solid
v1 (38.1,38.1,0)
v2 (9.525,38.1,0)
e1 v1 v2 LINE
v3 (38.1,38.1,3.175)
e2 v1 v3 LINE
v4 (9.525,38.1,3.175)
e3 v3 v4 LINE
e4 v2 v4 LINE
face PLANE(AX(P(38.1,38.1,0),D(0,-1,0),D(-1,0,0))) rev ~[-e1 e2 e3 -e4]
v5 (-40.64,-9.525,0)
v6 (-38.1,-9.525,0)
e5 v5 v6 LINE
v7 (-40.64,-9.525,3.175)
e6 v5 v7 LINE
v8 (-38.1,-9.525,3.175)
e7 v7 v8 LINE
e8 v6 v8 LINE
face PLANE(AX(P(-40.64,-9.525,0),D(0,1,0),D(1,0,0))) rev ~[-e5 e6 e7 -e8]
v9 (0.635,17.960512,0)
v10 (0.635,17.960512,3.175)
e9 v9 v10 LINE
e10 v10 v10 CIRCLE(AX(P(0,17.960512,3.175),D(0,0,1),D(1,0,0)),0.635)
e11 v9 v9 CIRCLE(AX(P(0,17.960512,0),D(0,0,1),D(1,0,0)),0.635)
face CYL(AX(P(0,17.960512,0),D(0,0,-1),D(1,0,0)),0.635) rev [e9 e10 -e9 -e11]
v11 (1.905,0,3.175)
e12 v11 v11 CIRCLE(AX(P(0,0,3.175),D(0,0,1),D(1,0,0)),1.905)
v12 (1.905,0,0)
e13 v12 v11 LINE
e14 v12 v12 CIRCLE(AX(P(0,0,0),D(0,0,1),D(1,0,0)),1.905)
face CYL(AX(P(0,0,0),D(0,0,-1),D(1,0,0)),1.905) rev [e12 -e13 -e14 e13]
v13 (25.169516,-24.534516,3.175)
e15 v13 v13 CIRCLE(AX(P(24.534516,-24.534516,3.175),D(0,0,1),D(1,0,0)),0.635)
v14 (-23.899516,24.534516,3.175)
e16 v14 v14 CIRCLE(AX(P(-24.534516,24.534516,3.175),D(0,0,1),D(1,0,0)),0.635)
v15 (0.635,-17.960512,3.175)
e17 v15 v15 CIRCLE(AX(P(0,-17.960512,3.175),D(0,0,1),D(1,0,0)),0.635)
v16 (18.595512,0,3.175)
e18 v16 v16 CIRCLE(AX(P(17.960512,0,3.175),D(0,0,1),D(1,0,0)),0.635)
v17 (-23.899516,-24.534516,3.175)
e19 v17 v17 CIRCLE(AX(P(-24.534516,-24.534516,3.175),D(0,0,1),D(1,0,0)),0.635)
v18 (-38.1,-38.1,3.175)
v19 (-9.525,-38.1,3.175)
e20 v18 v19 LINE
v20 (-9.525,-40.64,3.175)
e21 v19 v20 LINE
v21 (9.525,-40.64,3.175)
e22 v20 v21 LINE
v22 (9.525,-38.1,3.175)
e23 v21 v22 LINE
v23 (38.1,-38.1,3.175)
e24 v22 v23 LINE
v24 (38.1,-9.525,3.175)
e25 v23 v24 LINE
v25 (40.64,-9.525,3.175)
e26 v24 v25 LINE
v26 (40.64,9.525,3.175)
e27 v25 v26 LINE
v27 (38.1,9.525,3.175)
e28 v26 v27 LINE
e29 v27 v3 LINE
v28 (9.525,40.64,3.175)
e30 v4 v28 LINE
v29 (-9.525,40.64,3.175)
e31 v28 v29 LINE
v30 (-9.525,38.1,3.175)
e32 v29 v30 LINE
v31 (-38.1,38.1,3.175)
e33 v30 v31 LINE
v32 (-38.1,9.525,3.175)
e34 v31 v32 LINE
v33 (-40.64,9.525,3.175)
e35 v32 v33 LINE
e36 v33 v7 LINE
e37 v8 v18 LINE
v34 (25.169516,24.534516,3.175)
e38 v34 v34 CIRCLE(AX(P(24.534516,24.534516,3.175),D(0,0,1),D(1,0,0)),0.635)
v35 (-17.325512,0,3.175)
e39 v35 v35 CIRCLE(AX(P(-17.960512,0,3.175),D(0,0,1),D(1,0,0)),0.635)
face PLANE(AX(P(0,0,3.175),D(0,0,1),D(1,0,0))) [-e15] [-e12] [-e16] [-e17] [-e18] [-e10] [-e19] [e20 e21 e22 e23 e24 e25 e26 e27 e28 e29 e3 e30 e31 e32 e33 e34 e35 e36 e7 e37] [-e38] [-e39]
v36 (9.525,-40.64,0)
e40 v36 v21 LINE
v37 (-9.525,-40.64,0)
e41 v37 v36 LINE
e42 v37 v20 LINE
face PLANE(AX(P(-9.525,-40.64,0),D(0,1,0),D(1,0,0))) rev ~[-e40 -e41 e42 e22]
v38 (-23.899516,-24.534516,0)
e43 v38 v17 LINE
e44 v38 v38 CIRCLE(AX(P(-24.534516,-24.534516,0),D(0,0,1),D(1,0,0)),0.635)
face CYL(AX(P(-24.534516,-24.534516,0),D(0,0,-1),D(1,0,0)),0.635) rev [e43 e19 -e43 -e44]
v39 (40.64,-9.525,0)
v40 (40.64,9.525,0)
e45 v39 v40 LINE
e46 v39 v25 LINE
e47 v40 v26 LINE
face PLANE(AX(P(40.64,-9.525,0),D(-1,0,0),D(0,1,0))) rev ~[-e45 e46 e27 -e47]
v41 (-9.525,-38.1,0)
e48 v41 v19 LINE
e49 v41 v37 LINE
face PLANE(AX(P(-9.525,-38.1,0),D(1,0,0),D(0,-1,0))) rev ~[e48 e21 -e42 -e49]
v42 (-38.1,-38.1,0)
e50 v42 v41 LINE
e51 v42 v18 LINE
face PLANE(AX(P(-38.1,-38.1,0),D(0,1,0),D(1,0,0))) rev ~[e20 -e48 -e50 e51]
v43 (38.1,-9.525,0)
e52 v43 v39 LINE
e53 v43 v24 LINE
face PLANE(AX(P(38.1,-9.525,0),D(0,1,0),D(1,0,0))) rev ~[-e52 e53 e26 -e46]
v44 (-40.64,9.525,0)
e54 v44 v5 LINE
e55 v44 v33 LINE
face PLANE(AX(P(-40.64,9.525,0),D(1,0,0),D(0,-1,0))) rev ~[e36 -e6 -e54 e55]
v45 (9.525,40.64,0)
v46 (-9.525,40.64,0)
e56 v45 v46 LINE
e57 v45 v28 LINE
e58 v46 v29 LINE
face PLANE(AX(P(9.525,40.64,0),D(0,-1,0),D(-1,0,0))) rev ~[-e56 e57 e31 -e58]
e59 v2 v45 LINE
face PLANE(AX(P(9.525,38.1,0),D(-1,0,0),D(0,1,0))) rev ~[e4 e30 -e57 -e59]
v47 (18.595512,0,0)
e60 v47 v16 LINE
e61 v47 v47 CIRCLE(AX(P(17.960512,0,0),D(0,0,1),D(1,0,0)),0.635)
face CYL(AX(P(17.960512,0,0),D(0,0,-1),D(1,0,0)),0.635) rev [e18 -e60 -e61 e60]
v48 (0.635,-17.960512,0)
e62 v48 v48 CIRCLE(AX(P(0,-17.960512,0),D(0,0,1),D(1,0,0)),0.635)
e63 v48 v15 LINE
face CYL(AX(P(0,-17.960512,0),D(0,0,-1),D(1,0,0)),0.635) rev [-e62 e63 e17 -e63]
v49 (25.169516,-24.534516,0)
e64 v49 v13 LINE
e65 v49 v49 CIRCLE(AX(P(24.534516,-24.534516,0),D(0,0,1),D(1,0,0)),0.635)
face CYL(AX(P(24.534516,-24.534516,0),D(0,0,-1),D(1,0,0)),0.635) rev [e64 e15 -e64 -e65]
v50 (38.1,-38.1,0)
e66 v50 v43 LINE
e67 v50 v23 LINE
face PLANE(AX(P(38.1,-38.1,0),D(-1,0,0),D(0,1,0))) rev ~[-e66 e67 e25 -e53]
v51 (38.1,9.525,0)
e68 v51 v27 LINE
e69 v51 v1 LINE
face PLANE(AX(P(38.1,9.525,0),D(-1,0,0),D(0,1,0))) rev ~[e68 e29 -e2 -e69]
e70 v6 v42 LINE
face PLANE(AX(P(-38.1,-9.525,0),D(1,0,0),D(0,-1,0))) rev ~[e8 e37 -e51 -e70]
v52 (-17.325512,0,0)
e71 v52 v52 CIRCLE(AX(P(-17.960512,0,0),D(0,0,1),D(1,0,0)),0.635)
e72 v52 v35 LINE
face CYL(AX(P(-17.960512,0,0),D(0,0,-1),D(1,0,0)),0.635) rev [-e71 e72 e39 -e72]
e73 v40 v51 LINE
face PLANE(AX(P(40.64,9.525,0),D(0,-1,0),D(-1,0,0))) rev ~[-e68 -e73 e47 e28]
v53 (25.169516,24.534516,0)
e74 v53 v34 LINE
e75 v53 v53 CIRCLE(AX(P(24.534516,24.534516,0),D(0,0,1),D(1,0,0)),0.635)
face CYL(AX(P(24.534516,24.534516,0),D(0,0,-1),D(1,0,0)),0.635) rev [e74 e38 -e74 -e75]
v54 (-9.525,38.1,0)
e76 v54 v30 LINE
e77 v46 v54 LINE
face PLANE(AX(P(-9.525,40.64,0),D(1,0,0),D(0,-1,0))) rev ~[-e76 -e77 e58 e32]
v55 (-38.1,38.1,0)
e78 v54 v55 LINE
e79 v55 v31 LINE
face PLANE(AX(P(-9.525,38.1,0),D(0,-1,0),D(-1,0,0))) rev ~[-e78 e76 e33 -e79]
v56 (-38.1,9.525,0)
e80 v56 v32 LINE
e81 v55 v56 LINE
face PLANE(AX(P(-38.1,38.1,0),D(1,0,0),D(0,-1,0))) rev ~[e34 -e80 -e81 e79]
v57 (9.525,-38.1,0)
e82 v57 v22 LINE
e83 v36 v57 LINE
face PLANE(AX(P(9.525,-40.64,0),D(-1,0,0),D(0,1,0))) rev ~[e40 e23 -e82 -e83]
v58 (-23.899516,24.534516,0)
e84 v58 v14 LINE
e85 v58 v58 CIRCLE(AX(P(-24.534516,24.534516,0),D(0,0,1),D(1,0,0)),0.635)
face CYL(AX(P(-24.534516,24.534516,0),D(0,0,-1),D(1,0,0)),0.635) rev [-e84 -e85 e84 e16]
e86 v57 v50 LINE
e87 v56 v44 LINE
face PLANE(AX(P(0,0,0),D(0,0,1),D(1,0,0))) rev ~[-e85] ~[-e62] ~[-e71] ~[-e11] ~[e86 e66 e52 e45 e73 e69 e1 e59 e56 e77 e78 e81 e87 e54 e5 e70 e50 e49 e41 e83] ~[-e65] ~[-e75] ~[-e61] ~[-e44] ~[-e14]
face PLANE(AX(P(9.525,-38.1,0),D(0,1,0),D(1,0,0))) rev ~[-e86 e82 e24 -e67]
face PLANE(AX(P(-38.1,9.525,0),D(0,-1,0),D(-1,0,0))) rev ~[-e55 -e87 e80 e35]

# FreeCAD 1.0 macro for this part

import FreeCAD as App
import Part
import Sketcher

V = App.Vector
Q = App.Units.Quantity

doc = App.newDocument("Part")
body = doc.addObject("PartDesign::Body", "Body")

sketch1 = body.newObject("Sketcher::SketchObject", "Sketch")
sketch1.AttachmentSupport = (doc.getObject("XY_Plane"), [""])
sketch1.MapMode = "FlatFace"
sketch1.addGeometry([
    Part.LineSegment(V(-9.525, 38.1, 0), V(-38.1, 38.1, 0)),
    Part.LineSegment(V(-38.1, 38.1, 0), V(-38.1, 9.525, 0)),
    Part.LineSegment(V(-38.1, 9.525, 0), V(-40.64, 9.525, 0)),
    Part.LineSegment(V(-40.64, 9.525, 0), V(-40.64, -9.525, 0)),
    Part.LineSegment(V(-40.64, -9.525, 0), V(-38.1, -9.525, 0)),
    Part.LineSegment(V(-38.1, -9.525, 0), V(-38.1, -38.1, 0)),
    Part.LineSegment(V(-38.1, -38.1, 0), V(-9.525, -38.1, 0)),
    Part.LineSegment(V(-9.525, -38.1, 0), V(-9.525, -40.64, 0)),
    Part.LineSegment(V(-9.525, -40.64, 0), V(9.525, -40.64, 0)),
    Part.LineSegment(V(9.525, -40.64, 0), V(9.525, -38.1, 0)),
    Part.LineSegment(V(9.525, -38.1, 0), V(38.1, -38.1, 0)),
    Part.LineSegment(V(38.1, -38.1, 0), V(38.1, -9.525, 0)),
    Part.LineSegment(V(38.1, -9.525, 0), V(40.64, -9.525, 0)),
    Part.LineSegment(V(40.64, -9.525, 0), V(40.64, 9.525, 0)),
    Part.LineSegment(V(40.64, 9.525, 0), V(38.1, 9.525, 0)),
    Part.LineSegment(V(38.1, 9.525, 0), V(38.1, 38.1, 0)),
    Part.LineSegment(V(38.1, 38.1, 0), V(9.525, 38.1, 0)),
    Part.LineSegment(V(9.525, 38.1, 0), V(9.525, 40.64, 0)),
    Part.LineSegment(V(9.525, 40.64, 0), V(-9.525, 40.64, 0)),
    Part.LineSegment(V(-9.525, 40.64, 0), V(-9.525, 38.1, 0)),
    Part.Circle(V(-24.534516, -24.534516, 0), V(0, 0, 1), 0.635),
    Part.Circle(V(0, -17.960512, 0), V(0, 0, 1), 0.635),
    Part.Circle(V(24.534516, -24.534516, 0), V(0, 0, 1), 0.635),
    Part.Circle(V(-17.960512, 0, 0), V(0, 0, 1), 0.635),
    Part.Circle(V(-24.534516, 24.534516, 0), V(0, 0, 1), 0.635),
    Part.Circle(V(0, 0, 0), V(0, 0, 1), 1.905),
    Part.Circle(V(17.960512, 0, 0), V(0, 0, 1), 0.635),
    Part.Circle(V(0, 17.960512, 0), V(0, 0, 1), 0.635),
    Part.Circle(V(24.534516, 24.534516, 0), V(0, 0, 1), 0.635),
], False)
sketch1.addConstraint([
    Sketcher.Constraint("Coincident", 0, 2, 1, 1),
    Sketcher.Constraint("Coincident", 1, 2, 2, 1),
    Sketcher.Constraint("Coincident", 2, 2, 3, 1),
    Sketcher.Constraint("Coincident", 3, 2, 4, 1),
    Sketcher.Constraint("Coincident", 4, 2, 5, 1),
    Sketcher.Constraint("Coincident", 5, 2, 6, 1),
    Sketcher.Constraint("Coincident", 6, 2, 7, 1),
    Sketcher.Constraint("Coincident", 7, 2, 8, 1),
    Sketcher.Constraint("Coincident", 8, 2, 9, 1),
    Sketcher.Constraint("Coincident", 9, 2, 10, 1),
    Sketcher.Constraint("Coincident", 10, 2, 11, 1),
    Sketcher.Constraint("Coincident", 11, 2, 12, 1),
    Sketcher.Constraint("Coincident", 12, 2, 13, 1),
    Sketcher.Constraint("Coincident", 13, 2, 14, 1),
    Sketcher.Constraint("Coincident", 14, 2, 15, 1),
    Sketcher.Constraint("Coincident", 15, 2, 16, 1),
    Sketcher.Constraint("Coincident", 16, 2, 17, 1),
    Sketcher.Constraint("Coincident", 17, 2, 18, 1),
    Sketcher.Constraint("Coincident", 18, 2, 19, 1),
    Sketcher.Constraint("Coincident", 19, 2, 0, 1),
    Sketcher.Constraint("Horizontal", 0),
    Sketcher.Constraint("Vertical", 1),
    Sketcher.Constraint("Horizontal", 2),
    Sketcher.Constraint("Vertical", 3),
    Sketcher.Constraint("Horizontal", 4),
    Sketcher.Constraint("Vertical", 5),
    Sketcher.Constraint("Horizontal", 6),
    Sketcher.Constraint("Vertical", 7),
    Sketcher.Constraint("Horizontal", 8),
    Sketcher.Constraint("Vertical", 9),
    Sketcher.Constraint("Horizontal", 10),
    Sketcher.Constraint("Vertical", 11),
    Sketcher.Constraint("Horizontal", 12),
    Sketcher.Constraint("Vertical", 13),
    Sketcher.Constraint("Horizontal", 14),
    Sketcher.Constraint("Vertical", 15),
    Sketcher.Constraint("Horizontal", 16),
    Sketcher.Constraint("Vertical", 17),
    Sketcher.Constraint("Horizontal", 18),
    Sketcher.Constraint("Vertical", 19),
    Sketcher.Constraint("Coincident", 25, 3, -1, 1),
    Sketcher.Constraint("Equal", 20, 21),
    Sketcher.Constraint("Equal", 21, 22),
    Sketcher.Constraint("Equal", 22, 23),
    Sketcher.Constraint("Equal", 23, 24),
    Sketcher.Constraint("Equal", 24, 26),
    Sketcher.Constraint("Equal", 26, 27),
    Sketcher.Constraint("Equal", 27, 28),
    Sketcher.Constraint("Symmetric", 22, 3, 24, 3, -1, 1),
    Sketcher.Constraint("Symmetric", 23, 3, 26, 3, -1, 1),
    Sketcher.Constraint("Symmetric", 21, 3, 27, 3, -1, 1),
    Sketcher.Constraint("Symmetric", 20, 3, 28, 3, -1, 1),
    Sketcher.Constraint("Symmetric", 0, 2, 10, 2, -1, 1),
    Sketcher.Constraint("Symmetric", 2, 2, 12, 2, -1, 1),
    Sketcher.Constraint("Symmetric", 4, 2, 14, 2, -1, 1),
    Sketcher.Constraint("Symmetric", 6, 2, 16, 2, -1, 1),
    Sketcher.Constraint("Symmetric", 8, 2, 18, 2, -1, 1),
    Sketcher.Constraint("Symmetric", 20, 3, 22, 3, -2),
    Sketcher.Constraint("Symmetric", 6, 2, 9, 2, -2),
    Sketcher.Constraint("Symmetric", 4, 2, 11, 2, -2),
    Sketcher.Constraint("PointOnObject", 21, 3, -2),
    Sketcher.Constraint("PointOnObject", 23, 3, -1),
    Sketcher.Constraint("Equal", 16, 1),
    Sketcher.Constraint("Equal", 18, 3),
    Sketcher.Constraint("Equal", 14, 7),
    Sketcher.Constraint("Diameter", 20, Q("0.05 in")),
    Sketcher.Constraint("Diameter", 25, Q("0.15 in")),
    Sketcher.Constraint("DistanceX", 2, 2, 2, 1, Q("0.1 in")),
    Sketcher.Constraint("DistanceX", 8, 1, 8, 2, Q("0.75 in")),
    Sketcher.Constraint("DistanceX", 0, 2, -1, 1, Q("1.5 in")),
    Sketcher.Constraint("DistanceX", 23, 3, 22, 3, Q("42.495028 mm")),
    Sketcher.Constraint("DistanceY", 21, 3, 24, 3, Q("42.495028 mm")),
    Sketcher.Constraint("DistanceX", 0, 2, 23, 3, Q("20.139488 mm")),
    Sketcher.Constraint("DistanceY", 27, 3, 0, 2, Q("20.139488 mm")),
])
pad1 = body.newObject("PartDesign::Pad", "Pad")
pad1.Profile = sketch1
pad1.Length = Q("0.125 in")

doc.recompute()
